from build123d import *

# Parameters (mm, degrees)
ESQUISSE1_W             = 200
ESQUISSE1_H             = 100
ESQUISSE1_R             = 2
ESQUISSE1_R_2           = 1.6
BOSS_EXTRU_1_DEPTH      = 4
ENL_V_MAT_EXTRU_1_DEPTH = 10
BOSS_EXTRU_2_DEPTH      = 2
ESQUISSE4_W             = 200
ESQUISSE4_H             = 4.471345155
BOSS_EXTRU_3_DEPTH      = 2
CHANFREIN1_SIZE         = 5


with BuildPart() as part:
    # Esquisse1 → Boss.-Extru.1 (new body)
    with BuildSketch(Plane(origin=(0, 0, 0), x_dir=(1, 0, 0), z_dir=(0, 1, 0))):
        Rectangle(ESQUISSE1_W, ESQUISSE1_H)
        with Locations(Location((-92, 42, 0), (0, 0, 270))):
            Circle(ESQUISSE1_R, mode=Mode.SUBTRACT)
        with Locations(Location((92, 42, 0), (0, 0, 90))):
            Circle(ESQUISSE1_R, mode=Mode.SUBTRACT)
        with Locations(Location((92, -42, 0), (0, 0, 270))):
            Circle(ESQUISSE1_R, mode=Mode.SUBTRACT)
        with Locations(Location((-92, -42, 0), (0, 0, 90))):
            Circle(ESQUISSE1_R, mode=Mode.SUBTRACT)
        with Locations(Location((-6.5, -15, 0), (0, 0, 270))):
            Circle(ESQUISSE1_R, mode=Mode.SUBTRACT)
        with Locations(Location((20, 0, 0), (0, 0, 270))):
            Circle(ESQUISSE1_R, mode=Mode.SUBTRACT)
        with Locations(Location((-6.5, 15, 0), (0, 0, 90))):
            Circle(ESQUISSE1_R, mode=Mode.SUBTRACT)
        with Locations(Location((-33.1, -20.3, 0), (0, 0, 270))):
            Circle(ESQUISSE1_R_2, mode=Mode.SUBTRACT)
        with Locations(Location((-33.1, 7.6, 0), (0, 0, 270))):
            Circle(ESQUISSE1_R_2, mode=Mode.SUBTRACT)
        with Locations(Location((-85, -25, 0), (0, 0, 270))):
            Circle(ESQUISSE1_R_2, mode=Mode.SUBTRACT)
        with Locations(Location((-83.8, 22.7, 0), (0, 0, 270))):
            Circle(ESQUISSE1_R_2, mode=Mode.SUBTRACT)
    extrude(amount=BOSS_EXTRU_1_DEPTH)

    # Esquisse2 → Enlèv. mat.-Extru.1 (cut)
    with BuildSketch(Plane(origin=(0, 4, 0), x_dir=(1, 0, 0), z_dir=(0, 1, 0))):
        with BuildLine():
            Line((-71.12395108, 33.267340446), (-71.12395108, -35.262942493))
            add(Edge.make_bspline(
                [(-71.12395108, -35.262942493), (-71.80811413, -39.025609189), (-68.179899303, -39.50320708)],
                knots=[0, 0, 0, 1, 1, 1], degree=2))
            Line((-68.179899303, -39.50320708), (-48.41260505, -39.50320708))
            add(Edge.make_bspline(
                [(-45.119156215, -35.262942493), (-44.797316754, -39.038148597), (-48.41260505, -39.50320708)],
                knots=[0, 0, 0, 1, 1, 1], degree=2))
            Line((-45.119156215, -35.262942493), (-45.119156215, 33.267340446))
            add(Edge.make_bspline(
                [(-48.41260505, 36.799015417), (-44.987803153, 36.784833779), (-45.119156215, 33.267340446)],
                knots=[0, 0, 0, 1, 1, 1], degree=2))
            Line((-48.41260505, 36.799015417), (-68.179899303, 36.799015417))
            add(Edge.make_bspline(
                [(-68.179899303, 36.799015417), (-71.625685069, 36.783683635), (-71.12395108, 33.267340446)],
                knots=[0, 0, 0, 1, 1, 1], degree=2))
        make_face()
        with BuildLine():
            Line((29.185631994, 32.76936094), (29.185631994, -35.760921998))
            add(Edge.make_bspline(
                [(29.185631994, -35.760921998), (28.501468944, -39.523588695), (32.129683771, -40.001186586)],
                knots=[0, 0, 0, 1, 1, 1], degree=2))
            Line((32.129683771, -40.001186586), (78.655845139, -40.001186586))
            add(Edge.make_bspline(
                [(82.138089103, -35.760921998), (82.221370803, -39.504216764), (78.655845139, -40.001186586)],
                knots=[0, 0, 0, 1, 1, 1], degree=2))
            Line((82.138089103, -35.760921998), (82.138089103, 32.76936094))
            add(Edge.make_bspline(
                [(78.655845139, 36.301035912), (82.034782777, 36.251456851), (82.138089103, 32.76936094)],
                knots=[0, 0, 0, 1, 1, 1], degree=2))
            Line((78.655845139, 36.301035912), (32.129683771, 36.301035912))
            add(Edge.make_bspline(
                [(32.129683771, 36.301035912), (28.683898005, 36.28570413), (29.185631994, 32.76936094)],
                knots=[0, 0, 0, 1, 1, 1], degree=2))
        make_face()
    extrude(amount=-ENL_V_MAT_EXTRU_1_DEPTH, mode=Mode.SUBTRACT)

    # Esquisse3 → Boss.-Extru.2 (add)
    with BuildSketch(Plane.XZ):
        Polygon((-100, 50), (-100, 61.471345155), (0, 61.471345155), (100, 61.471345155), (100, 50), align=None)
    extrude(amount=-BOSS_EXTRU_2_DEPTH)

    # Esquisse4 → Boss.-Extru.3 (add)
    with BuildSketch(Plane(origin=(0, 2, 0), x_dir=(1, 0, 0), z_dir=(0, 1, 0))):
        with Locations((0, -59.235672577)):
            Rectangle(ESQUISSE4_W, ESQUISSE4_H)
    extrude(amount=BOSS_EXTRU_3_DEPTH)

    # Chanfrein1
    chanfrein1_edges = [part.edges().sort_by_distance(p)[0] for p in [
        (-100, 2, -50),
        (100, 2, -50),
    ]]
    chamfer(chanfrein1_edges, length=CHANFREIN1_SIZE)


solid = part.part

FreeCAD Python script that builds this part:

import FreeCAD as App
import Part
import Sketcher
from FreeCAD import Vector


def edges_at(feature, points):
    """Names of the edges that pass closest to the given points."""
    edges = feature.Shape.Edges
    near = lambda p: min(range(len(edges)), key=lambda i: edges[i].distToShape(Part.Vertex(*p))[0])
    return sorted({f"Edge{near(p) + 1}" for p in points})


def add_polygon(sketch, points):
    """Adds a closed chain of lines whose ends are joined by coincident constraints."""
    first, n = sketch.GeometryCount, len(points)
    for a, b in zip(points, points[1:] + points[:1]):
        sketch.addGeometry(Part.LineSegment(App.Vector(*a, 0), App.Vector(*b, 0)), False)
    for i in range(n):
        sketch.addConstraint(Sketcher.Constraint("Coincident", first + i, 2, first + (i + 1) % n, 1))

doc = App.newDocument("Part")
params = doc.addObject("Spreadsheet::Sheet", "Params")
for row, (alias, value) in enumerate([
    ("sketch1_diameter", "4 mm"),
    ("sketch1_diameter2", "3.2 mm"),
    ("sketch1_width", "200 mm"),
    ("sketch1_height", "100 mm"),
    ("pad1_length", "4 mm"),
    ("pocket1_length", "10 mm"),
    ("sketch3_width", "200 mm"),
    ("pad2_length", "2 mm"),
    ("sketch4_width", "200 mm"),
    ("pad3_length", "2 mm"),
    ("chamfer_size", "5 mm"),
], start=1):
    params.set(f"A{row}", alias)
    params.set(f"B{row}", "=" + value)
    params.setAlias(f"B{row}", alias)

body = doc.addObject("PartDesign::Body", "Body")

# Sketch on XZ plane
sketch1 = body.newObject("Sketcher::SketchObject", "Sketch")
sketch1.AttachmentSupport = (doc.getObject("XZ_Plane"), [""])
sketch1.MapMode = "FlatFace"
add_polygon(sketch1, [(-100, -50), (-100, 50), (100, 50), (100, -50)])  # lines 0-3
sketch1.addGeometry(Part.Circle(Vector(-92, 42, 0), Vector(0, 0, 1), 2), False)  # 4
sketch1.addGeometry(Part.Circle(Vector(-85, 25, 0), Vector(0, 0, 1), 1.6), False)  # 5
sketch1.addGeometry(Part.Circle(Vector(-33.1, 20.3, 0), Vector(0, 0, 1), 1.6), False)  # 6
sketch1.addGeometry(Part.Circle(Vector(-6.5, 15, 0), Vector(0, 0, 1), 2), False)  # 7
sketch1.addGeometry(Part.Circle(Vector(92, 42, 0), Vector(0, 0, 1), 2), False)  # 8
sketch1.addGeometry(Part.Circle(Vector(-33.1, -7.6, 0), Vector(0, 0, 1), 1.6), False)  # 9
sketch1.addGeometry(Part.Circle(Vector(-6.5, -15, 0), Vector(0, 0, 1), 2), False)  # 10
sketch1.addGeometry(Part.Circle(Vector(-83.8, -22.7, 0), Vector(0, 0, 1), 1.6), False)  # 11
sketch1.addGeometry(Part.Circle(Vector(-92, -42, 0), Vector(0, 0, 1), 2), False)  # 12
sketch1.addGeometry(Part.Circle(Vector(20, 0, 0), Vector(0, 0, 1), 2), False)  # 13
sketch1.addGeometry(Part.Circle(Vector(92, -42, 0), Vector(0, 0, 1), 2), False)  # 14
sketch1.addConstraint([
    Sketcher.Constraint("Vertical", 0),
    Sketcher.Constraint("Horizontal", 1),
    Sketcher.Constraint("Vertical", 2),
    Sketcher.Constraint("Horizontal", 3),
    Sketcher.Constraint("Equal", 5, 6),
    Sketcher.Constraint("Equal", 4, 7),
    Sketcher.Constraint("Equal", 7, 8),
    Sketcher.Constraint("Equal", 6, 9),
    Sketcher.Constraint("Equal", 8, 10),
    Sketcher.Constraint("Equal", 9, 11),
    Sketcher.Constraint("Equal", 10, 12),
    Sketcher.Constraint("Equal", 12, 13),
    Sketcher.Constraint("Equal", 13, 14),
    Sketcher.Constraint("Symmetric", 8, 3, 12, 3, -1, 1),
    Sketcher.Constraint("Symmetric", 4, 3, 14, 3, -1, 1),
    Sketcher.Constraint("Symmetric", 0, 2, 2, 2, -1, 1),
    Sketcher.Constraint("Symmetric", 4, 3, 8, 3, -2),
    Sketcher.Constraint("Symmetric", 7, 3, 10, 3, -1),
    Sketcher.Constraint("PointOnObject", 13, 3, -1),
    Sketcher.Constraint("Vertical", 6, 3, 9, 3),
    Sketcher.Constraint("Diameter", 4, 4.0),
    Sketcher.Constraint("Diameter", 5, 3.2),
    Sketcher.Constraint("DistanceX", 1, 1, 1, 2, 200.0),
    Sketcher.Constraint("DistanceY", 0, 1, 0, 2, 100.0),
    Sketcher.Constraint("DistanceX", 4, 3, -1, 1, 92.0),
    Sketcher.Constraint("DistanceY", -1, 1, 4, 3, 42.0),
    Sketcher.Constraint("DistanceX", 5, 3, -1, 1, 85.0),
    Sketcher.Constraint("DistanceY", -1, 1, 5, 3, 25.0),
    Sketcher.Constraint("DistanceY", -1, 1, 7, 3, 15.0),
    Sketcher.Constraint("DistanceX", -1, 1, 13, 3, 20.0),
    Sketcher.Constraint("DistanceY", 11, 3, 6, 3, 43.0),
    Sketcher.Constraint("DistanceX", 6, 3, -1, 1, 33.1),
    Sketcher.Constraint("DistanceY", -1, 1, 6, 3, 20.3),
    Sketcher.Constraint("DistanceX", 7, 3, -1, 1, 6.5),
    Sketcher.Constraint("DistanceY", 9, 3, -1, 1, 7.6),
    Sketcher.Constraint("DistanceX", 11, 3, -1, 1, 83.8),
])
sketch1.setExpression("Constraints[24]", "Params.sketch1_diameter")
sketch1.setExpression("Constraints[25]", "Params.sketch1_diameter2")
sketch1.setExpression("Constraints[26]", "Params.sketch1_width")
sketch1.setExpression("Constraints[27]", "Params.sketch1_height")
pad1 = body.newObject("PartDesign::Pad", "Pad")
pad1.Profile = sketch1
pad1.setExpression("Length", "Params.pad1_length")
pad1.Reversed = True

# Sketch on XZ plane
sketch2 = body.newObject("Sketcher::SketchObject", "Sketch001")
sketch2.AttachmentSupport = (doc.getObject("XZ_Plane"), [""])
sketch2.MapMode = "FlatFace"
sketch2.AttachmentOffset = App.Placement(Vector(0, 0, -4), App.Rotation())
sketch2.addGeometry([
    Part.LineSegment(Vector(-71.123951, -33.26734, 0), Vector(-71.123951, 35.262942, 0)),  # 0
    Part.BSplineCurve([Vector(-71.123951, 35.262942, 0), Vector(-71.808114, 39.025609, 0), Vector(-68.179899, 39.503207, 0)], [3, 3], [0, 1], False, 2, [1, 1, 1], False),  # 1
    Part.LineSegment(Vector(-68.179899, 39.503207, 0), Vector(-48.412605, 39.503207, 0)),  # 2
    Part.BSplineCurve([Vector(-45.119156, 35.262942, 0), Vector(-44.797317, 39.038149, 0), Vector(-48.412605, 39.503207, 0)], [3, 3], [0, 1], False, 2, [1, 1, 1], False),  # 3
    Part.LineSegment(Vector(-45.119156, 35.262942, 0), Vector(-45.119156, -33.26734, 0)),  # 4
    Part.BSplineCurve([Vector(-48.412605, -36.799015, 0), Vector(-44.987803, -36.784834, 0), Vector(-45.119156, -33.26734, 0)], [3, 3], [0, 1], False, 2, [1, 1, 1], False),  # 5
    Part.LineSegment(Vector(-48.412605, -36.799015, 0), Vector(-68.179899, -36.799015, 0)),  # 6
    Part.BSplineCurve([Vector(-68.179899, -36.799015, 0), Vector(-71.625685, -36.783684, 0), Vector(-71.123951, -33.26734, 0)], [3, 3], [0, 1], False, 2, [1, 1, 1], False),  # 7
    Part.LineSegment(Vector(29.185632, -32.769361, 0), Vector(29.185632, 35.760922, 0)),  # 8
    Part.BSplineCurve([Vector(29.185632, 35.760922, 0), Vector(28.501469, 39.523589, 0), Vector(32.129684, 40.001187, 0)], [3, 3], [0, 1], False, 2, [1, 1, 1], False),  # 9
    Part.LineSegment(Vector(32.129684, 40.001187, 0), Vector(78.655845, 40.001187, 0)),  # 10
    Part.BSplineCurve([Vector(82.138089, 35.760922, 0), Vector(82.221371, 39.504217, 0), Vector(78.655845, 40.001187, 0)], [3, 3], [0, 1], False, 2, [1, 1, 1], False),  # 11
    Part.LineSegment(Vector(82.138089, 35.760922, 0), Vector(82.138089, -32.769361, 0)),  # 12
    Part.BSplineCurve([Vector(78.655845, -36.301036, 0), Vector(82.034783, -36.251457, 0), Vector(82.138089, -32.769361, 0)], [3, 3], [0, 1], False, 2, [1, 1, 1], False),  # 13
    Part.LineSegment(Vector(78.655845, -36.301036, 0), Vector(32.129684, -36.301036, 0)),  # 14
    Part.BSplineCurve([Vector(32.129684, -36.301036, 0), Vector(28.683898, -36.285704, 0), Vector(29.185632, -32.769361, 0)], [3, 3], [0, 1], False, 2, [1, 1, 1], False),  # 15
], False)
sketch2.addConstraint([
    Sketcher.Constraint("Block", 1),
    Sketcher.Constraint("Block", 3),
    Sketcher.Constraint("Block", 5),
    Sketcher.Constraint("Block", 7),
    Sketcher.Constraint("Block", 9),
    Sketcher.Constraint("Block", 11),
    Sketcher.Constraint("Block", 13),
    Sketcher.Constraint("Block", 15),
    Sketcher.Constraint("Coincident", 0, 2, 1, 1),
    Sketcher.Constraint("Coincident", 1, 2, 2, 1),
    Sketcher.Constraint("Coincident", 2, 2, 3, 2),
    Sketcher.Constraint("Coincident", 3, 1, 4, 1),
    Sketcher.Constraint("Coincident", 4, 2, 5, 2),
    Sketcher.Constraint("Coincident", 5, 1, 6, 1),
    Sketcher.Constraint("Coincident", 6, 2, 7, 1),
    Sketcher.Constraint("Coincident", 7, 2, 0, 1),
    Sketcher.Constraint("Coincident", 8, 2, 9, 1),
    Sketcher.Constraint("Coincident", 9, 2, 10, 1),
    Sketcher.Constraint("Coincident", 10, 2, 11, 2),
    Sketcher.Constraint("Coincident", 11, 1, 12, 1),
    Sketcher.Constraint("Coincident", 12, 2, 13, 2),
    Sketcher.Constraint("Coincident", 13, 1, 14, 1),
    Sketcher.Constraint("Coincident", 14, 2, 15, 1),
    Sketcher.Constraint("Coincident", 15, 2, 8, 1),
])
pocket1 = body.newObject("PartDesign::Pocket", "Pocket")
pocket1.Profile = sketch2
pocket1.setExpression("Length", "Params.pocket1_length")
pocket1.Reversed = True

# Sketch on XZ plane
sketch3 = body.newObject("Sketcher::SketchObject", "Sketch002")
sketch3.AttachmentSupport = (doc.getObject("XZ_Plane"), [""])
sketch3.MapMode = "FlatFace"
add_polygon(sketch3, [(-100, 61), (-100, 50), (100, 50), (100, 61)])  # lines 0-3
sketch3.addConstraint([
    Sketcher.Constraint("Vertical", 0),
    Sketcher.Constraint("Horizontal", 1),
    Sketcher.Constraint("Vertical", 2),
    Sketcher.Constraint("Horizontal", 3),
    Sketcher.Constraint("DistanceX", 1, 1, 1, 2, 200.0),
    Sketcher.Constraint("DistanceX", 0, 2, -1, 1, 100.0),
    Sketcher.Constraint("DistanceY", -1, 1, 0, 2, 50.0),
    Sketcher.Constraint("DistanceY", 0, 2, 0, 1, 11.471345),
])
sketch3.setExpression("Constraints[8]", "Params.sketch3_width")
pad2 = body.newObject("PartDesign::Pad", "Pad001")
pad2.Profile = sketch3
pad2.setExpression("Length", "Params.pad2_length")
pad2.Reversed = True

# Sketch on XZ plane
sketch4 = body.newObject("Sketcher::SketchObject", "Sketch003")
sketch4.AttachmentSupport = (doc.getObject("XZ_Plane"), [""])
sketch4.MapMode = "FlatFace"
sketch4.AttachmentOffset = App.Placement(Vector(0, 0, -2), App.Rotation())
add_polygon(sketch4, [(-100, 57), (-100, 61.5), (100, 61.5), (100, 57)])  # lines 0-3
sketch4.addConstraint([
    Sketcher.Constraint("Vertical", 0),
    Sketcher.Constraint("Horizontal", 1),
    Sketcher.Constraint("Vertical", 2),
    Sketcher.Constraint("Horizontal", 3),
    Sketcher.Constraint("DistanceX", 1, 1, 1, 2, 200.0),
    Sketcher.Constraint("DistanceX", 0, 2, -1, 1, 100.0),
    Sketcher.Constraint("DistanceY", -1, 1, 2, 2, 57.0),
    Sketcher.Constraint("DistanceY", 0, 1, 0, 2, 4.471345),
])
sketch4.setExpression("Constraints[8]", "Params.sketch4_width")
pad3 = body.newObject("PartDesign::Pad", "Pad002")
pad3.Profile = sketch4
pad3.setExpression("Length", "Params.pad3_length")
pad3.Reversed = True
doc.recompute()

chamfer = body.newObject("PartDesign::Chamfer", "Chamfer")
chamfer.Base = (pad3, edges_at(pad3, [(-100, 2, -50), (100, 2, -50)]))
chamfer.setExpression("Size", "Params.chamfer_size")

doc.recompute()
